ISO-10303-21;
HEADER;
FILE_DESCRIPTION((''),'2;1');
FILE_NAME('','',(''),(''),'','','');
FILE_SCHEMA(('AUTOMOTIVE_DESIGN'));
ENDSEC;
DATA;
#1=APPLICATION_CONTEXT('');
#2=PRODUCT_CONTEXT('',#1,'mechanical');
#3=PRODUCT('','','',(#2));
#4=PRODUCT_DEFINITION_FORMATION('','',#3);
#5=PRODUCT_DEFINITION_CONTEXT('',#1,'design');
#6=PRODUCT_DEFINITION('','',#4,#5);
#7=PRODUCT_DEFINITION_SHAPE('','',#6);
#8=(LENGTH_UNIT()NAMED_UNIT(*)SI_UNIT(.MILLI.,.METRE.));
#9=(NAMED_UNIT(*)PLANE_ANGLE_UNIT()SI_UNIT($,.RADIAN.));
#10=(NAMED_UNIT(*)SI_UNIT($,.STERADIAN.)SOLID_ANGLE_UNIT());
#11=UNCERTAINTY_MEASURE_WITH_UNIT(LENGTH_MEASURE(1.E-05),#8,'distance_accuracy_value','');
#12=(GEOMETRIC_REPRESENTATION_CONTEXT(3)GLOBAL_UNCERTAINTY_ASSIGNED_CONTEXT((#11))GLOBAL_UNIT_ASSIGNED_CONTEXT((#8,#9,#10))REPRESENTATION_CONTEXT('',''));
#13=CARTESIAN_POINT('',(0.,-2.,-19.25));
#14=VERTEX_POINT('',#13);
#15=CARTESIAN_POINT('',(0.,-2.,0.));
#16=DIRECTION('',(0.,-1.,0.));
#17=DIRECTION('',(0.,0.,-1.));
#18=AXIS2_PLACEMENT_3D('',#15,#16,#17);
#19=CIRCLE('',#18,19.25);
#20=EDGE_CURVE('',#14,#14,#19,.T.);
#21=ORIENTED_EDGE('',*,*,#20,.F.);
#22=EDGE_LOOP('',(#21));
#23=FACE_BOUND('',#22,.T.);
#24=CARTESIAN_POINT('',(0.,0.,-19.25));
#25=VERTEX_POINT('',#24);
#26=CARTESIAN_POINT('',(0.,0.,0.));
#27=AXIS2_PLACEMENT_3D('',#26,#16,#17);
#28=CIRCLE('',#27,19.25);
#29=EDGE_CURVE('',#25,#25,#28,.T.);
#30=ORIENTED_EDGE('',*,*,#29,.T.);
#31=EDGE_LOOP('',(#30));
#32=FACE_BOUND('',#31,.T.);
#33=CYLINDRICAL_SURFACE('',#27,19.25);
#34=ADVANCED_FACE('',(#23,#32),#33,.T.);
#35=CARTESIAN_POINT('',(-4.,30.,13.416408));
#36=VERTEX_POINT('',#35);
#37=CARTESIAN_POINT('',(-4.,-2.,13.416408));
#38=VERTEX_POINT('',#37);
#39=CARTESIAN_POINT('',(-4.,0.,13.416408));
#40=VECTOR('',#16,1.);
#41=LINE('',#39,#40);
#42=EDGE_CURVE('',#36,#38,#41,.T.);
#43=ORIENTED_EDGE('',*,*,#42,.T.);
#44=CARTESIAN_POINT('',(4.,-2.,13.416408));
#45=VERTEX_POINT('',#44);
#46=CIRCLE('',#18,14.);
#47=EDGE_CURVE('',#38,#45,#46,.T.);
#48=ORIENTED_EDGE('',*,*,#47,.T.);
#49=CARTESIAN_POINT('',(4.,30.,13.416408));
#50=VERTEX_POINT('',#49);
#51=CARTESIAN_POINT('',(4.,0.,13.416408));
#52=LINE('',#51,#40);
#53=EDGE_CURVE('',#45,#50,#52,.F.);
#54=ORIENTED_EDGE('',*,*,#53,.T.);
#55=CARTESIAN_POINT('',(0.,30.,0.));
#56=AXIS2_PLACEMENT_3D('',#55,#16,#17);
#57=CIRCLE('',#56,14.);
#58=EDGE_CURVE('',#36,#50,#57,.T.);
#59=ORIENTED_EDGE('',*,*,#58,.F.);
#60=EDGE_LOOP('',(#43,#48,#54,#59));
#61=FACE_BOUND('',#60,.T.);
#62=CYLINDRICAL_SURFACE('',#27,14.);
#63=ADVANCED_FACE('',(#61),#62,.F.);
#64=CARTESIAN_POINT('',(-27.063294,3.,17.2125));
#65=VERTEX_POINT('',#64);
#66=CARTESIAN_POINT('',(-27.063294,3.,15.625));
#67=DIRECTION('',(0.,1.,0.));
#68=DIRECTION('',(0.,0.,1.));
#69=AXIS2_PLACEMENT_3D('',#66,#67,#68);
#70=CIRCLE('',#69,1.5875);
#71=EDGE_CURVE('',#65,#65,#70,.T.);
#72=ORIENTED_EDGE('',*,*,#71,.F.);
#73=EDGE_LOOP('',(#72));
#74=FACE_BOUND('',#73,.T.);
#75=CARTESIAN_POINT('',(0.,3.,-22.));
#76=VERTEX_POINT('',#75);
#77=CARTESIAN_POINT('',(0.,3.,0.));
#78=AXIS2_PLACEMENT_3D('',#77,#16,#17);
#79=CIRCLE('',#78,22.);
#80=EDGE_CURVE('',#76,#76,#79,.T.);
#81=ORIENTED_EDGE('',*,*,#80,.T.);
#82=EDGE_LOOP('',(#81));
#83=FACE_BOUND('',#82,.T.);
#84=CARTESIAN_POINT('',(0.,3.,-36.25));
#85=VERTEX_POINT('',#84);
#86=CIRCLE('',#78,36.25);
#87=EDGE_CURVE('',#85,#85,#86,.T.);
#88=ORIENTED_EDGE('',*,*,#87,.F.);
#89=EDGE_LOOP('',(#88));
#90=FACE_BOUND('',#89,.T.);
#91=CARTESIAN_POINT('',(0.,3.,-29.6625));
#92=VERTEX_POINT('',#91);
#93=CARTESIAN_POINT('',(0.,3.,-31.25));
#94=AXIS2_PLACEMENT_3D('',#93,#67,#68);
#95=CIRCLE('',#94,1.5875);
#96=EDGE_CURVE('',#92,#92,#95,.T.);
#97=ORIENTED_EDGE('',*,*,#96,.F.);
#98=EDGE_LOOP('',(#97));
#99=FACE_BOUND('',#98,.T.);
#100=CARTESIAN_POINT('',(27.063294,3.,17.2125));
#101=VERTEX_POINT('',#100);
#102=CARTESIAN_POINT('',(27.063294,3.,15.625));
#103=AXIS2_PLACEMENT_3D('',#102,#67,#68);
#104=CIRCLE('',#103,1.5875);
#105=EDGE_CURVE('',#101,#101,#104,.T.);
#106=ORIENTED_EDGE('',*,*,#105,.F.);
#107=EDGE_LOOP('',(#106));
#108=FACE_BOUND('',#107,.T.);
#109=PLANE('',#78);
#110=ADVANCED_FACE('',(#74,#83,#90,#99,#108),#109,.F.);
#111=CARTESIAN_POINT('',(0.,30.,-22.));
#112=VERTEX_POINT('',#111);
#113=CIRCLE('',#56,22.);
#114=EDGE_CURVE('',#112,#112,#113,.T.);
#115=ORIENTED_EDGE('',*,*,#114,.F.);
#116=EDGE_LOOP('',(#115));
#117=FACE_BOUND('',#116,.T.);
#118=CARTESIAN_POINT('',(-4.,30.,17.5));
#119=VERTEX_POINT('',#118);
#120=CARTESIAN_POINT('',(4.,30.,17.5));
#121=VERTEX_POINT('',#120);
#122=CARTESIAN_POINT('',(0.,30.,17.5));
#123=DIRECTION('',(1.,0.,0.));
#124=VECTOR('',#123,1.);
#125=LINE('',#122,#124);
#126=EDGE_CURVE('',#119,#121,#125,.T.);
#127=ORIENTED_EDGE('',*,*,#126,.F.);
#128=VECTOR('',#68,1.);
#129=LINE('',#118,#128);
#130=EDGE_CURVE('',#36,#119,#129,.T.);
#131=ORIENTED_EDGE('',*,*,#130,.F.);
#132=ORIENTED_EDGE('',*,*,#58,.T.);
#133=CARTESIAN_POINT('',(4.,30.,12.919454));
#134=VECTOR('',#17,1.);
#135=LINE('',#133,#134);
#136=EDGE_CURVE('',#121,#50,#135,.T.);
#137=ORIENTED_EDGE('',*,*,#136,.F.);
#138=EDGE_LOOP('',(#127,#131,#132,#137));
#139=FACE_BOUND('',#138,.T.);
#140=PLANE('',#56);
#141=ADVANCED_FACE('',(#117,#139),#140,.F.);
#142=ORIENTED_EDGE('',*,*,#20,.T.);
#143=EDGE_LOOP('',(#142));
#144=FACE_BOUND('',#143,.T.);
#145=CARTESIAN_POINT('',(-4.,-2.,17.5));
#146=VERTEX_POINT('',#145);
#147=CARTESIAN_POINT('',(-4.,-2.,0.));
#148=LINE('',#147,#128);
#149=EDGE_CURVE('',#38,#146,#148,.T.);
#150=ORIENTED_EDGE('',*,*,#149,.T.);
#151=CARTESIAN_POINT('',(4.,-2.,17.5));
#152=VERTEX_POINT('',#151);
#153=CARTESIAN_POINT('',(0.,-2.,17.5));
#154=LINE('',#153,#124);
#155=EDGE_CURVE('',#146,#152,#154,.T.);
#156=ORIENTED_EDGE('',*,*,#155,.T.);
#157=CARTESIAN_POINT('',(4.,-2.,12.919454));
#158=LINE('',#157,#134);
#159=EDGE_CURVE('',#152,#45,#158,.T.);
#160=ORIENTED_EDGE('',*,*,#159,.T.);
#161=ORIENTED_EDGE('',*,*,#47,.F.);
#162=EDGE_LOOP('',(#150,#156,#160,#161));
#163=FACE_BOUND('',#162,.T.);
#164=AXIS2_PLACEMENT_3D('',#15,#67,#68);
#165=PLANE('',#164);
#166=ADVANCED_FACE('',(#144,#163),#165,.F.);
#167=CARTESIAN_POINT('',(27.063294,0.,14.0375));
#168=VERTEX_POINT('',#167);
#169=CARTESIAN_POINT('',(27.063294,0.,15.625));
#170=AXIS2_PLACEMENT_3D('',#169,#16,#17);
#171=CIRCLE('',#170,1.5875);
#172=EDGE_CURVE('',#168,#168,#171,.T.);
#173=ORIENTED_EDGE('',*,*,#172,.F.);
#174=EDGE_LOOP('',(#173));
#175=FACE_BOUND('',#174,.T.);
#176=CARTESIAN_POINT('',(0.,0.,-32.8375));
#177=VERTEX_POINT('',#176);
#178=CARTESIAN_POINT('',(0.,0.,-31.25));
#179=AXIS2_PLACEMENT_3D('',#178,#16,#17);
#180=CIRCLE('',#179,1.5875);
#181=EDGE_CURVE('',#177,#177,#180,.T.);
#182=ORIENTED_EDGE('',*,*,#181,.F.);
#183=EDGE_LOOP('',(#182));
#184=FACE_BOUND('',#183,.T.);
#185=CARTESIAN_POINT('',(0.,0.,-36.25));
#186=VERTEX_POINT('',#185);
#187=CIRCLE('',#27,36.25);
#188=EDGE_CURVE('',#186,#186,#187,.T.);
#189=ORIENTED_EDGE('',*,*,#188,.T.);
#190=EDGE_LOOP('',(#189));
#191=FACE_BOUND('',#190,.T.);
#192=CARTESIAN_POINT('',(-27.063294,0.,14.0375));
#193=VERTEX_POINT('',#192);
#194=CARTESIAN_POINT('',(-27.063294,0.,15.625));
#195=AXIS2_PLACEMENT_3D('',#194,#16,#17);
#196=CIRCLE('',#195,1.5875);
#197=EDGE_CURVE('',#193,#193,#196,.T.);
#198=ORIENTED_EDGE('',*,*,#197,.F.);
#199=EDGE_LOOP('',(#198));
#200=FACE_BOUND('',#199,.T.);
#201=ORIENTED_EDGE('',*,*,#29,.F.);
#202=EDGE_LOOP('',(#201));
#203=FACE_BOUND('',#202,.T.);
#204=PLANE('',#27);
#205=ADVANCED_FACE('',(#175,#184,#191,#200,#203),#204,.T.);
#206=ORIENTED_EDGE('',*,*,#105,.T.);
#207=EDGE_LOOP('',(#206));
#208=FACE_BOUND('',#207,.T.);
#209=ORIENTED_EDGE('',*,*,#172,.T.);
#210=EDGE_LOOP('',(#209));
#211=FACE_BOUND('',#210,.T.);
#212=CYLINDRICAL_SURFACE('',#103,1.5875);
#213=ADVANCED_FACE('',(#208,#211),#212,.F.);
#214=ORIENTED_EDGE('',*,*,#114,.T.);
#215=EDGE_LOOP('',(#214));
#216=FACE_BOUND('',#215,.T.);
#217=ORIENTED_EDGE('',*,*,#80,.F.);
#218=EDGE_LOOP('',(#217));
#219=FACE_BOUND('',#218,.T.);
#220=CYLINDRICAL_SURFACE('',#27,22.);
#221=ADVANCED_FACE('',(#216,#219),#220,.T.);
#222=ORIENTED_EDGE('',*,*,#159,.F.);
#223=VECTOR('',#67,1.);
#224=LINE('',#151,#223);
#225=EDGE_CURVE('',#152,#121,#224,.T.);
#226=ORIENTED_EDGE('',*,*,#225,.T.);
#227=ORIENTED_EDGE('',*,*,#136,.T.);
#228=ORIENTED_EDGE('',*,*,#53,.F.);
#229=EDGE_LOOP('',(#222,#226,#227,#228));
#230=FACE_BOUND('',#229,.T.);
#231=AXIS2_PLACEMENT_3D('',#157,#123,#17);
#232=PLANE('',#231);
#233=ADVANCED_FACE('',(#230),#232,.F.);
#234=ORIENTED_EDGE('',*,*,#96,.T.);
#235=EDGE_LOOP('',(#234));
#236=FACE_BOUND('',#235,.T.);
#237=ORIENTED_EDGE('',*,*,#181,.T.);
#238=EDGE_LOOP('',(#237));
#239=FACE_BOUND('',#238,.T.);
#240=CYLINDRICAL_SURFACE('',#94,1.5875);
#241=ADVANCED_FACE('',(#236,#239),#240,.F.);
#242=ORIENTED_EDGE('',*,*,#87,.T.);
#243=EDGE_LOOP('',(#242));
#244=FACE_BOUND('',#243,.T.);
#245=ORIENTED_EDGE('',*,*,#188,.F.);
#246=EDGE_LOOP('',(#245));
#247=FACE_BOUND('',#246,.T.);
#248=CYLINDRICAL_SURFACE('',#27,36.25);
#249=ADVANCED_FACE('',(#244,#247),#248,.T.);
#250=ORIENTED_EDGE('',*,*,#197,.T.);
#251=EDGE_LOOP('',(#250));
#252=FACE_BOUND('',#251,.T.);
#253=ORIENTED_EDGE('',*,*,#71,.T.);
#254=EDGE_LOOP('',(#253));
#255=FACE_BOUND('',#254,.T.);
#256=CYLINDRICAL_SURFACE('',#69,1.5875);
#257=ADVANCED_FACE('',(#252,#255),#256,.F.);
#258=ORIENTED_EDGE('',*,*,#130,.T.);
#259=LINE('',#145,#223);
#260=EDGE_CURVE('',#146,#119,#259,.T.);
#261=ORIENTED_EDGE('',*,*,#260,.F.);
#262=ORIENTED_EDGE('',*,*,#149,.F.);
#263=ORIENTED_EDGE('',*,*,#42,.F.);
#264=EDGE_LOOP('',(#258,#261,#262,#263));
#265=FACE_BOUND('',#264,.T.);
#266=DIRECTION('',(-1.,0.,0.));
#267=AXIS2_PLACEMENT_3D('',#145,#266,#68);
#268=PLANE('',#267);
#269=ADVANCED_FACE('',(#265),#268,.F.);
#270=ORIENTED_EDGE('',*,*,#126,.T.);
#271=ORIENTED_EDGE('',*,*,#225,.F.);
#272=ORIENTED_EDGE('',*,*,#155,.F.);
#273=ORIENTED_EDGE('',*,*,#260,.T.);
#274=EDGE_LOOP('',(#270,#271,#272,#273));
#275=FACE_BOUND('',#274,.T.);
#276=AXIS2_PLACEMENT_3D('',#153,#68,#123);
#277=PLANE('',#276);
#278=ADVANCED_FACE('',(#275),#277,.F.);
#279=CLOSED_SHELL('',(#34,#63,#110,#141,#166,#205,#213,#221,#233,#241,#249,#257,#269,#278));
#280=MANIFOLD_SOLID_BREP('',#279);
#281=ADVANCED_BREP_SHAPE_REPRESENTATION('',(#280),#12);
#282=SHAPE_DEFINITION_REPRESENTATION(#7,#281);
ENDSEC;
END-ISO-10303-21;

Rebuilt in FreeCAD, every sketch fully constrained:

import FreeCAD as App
import Part
import Sketcher
Q = App.Units.Quantity

doc = App.newDocument("Part")
body = doc.addObject("PartDesign::Body", "Body")

sketch1 = doc.addObject("Sketcher::SketchObject", "Sketch")
body.addObject(sketch1)
sketch1.AttachmentSupport = (doc.XY_Plane, [""])
sketch1.MapMode = "FlatFace"
sketch1.addGeometry([
    Part.LineSegment(App.Vector(22, 3, 0), App.Vector(22, 30, 0)),
    Part.LineSegment(App.Vector(22, 30, 0), App.Vector(14, 30, 0)),
    Part.LineSegment(App.Vector(14, 30, 0), App.Vector(14, -2, 0)),
    Part.LineSegment(App.Vector(14, -2, 0), App.Vector(19.2, -2, 0)),
    Part.LineSegment(App.Vector(19.2, -2, 0), App.Vector(19.2, 0, 0)),
    Part.LineSegment(App.Vector(19.2, 0, 0), App.Vector(36.2, 0, 0)),
    Part.LineSegment(App.Vector(36.2, 0, 0), App.Vector(36.2, 3, 0)),
    Part.LineSegment(App.Vector(36.2, 3, 0), App.Vector(22, 3, 0)),
], False)
sketch1.addConstraint([
    Sketcher.Constraint("Coincident", 0, 2, 1, 1),
    Sketcher.Constraint("Coincident", 1, 2, 2, 1),
    Sketcher.Constraint("Coincident", 2, 2, 3, 1),
    Sketcher.Constraint("Coincident", 3, 2, 4, 1),
    Sketcher.Constraint("Coincident", 4, 2, 5, 1),
    Sketcher.Constraint("Coincident", 5, 2, 6, 1),
    Sketcher.Constraint("Coincident", 6, 2, 7, 1),
    Sketcher.Constraint("Coincident", 7, 2, 0, 1),
    Sketcher.Constraint("Vertical", 0),
    Sketcher.Constraint("Horizontal", 1),
    Sketcher.Constraint("Vertical", 2),
    Sketcher.Constraint("Horizontal", 3),
    Sketcher.Constraint("Vertical", 4),
    Sketcher.Constraint("Horizontal", 5),
    Sketcher.Constraint("Vertical", 6),
    Sketcher.Constraint("Horizontal", 7),
    Sketcher.Constraint("PointOnObject", 4, 2, -1),
    Sketcher.Constraint("DistanceX", 1, 2, 1, 1, Q("8 mm")),
    Sketcher.Constraint("DistanceX", 5, 1, 5, 2, Q("17 mm")),
    Sketcher.Constraint("DistanceY", 0, 1, 0, 2, Q("27 mm")),
    Sketcher.Constraint("DistanceY", 2, 2, 2, 1, Q("32 mm")),
    Sketcher.Constraint("DistanceY", 4, 1, 4, 2, Q("2 mm")),
    Sketcher.Constraint("DistanceX", -1, 1, 0, 2, Q("22 mm")),
    Sketcher.Constraint("DistanceX", 3, 1, 3, 2, Q("5.25 mm")),
])
revolution = doc.addObject("PartDesign::Revolution", "Revolution")
body.addObject(revolution)
revolution.Profile = sketch1
revolution.ReferenceAxis = (sketch1, ["V_Axis"])
revolution.Angle = 360

sketch2 = doc.addObject("Sketcher::SketchObject", "Sketch001")
body.addObject(sketch2)
sketch2.AttachmentSupport = (doc.XZ_Plane, [""])
sketch2.MapMode = "FlatFace"
sketch2.AttachmentOffset = App.Placement(App.Vector(0, 0, -3), App.Rotation())
sketch2.addGeometry(Part.Circle(App.Vector(0, -31.2, 0), App.Vector(0, 0, 1), 1.6), False)
sketch2.addConstraint([
    Sketcher.Constraint("PointOnObject", 0, 3, -2),
    Sketcher.Constraint("Diameter", 0, Q("3.175 mm")),
    Sketcher.Constraint("DistanceY", 0, 3, -1, 1, Q("31.25 mm")),
])
doc.recompute()
hole = doc.addObject("PartDesign::Hole", "Hole")
body.addObject(hole)
hole.Profile = sketch2
hole.ThreadType = "None"
hole.Diameter = 3.175
hole.DepthType = "ThroughAll"
hole.Reversed = True
doc.recompute()

polarpattern = doc.addObject("PartDesign::PolarPattern", "PolarPattern")
body.addObject(polarpattern)
polarpattern.Originals = [hole]
polarpattern.Axis = (doc.Y_Axis, [""])
polarpattern.Angle = 360
polarpattern.Occurrences = 3
body.Tip = polarpattern

sketch3 = doc.addObject("Sketcher::SketchObject", "Sketch002")
body.addObject(sketch3)
sketch3.AttachmentSupport = (doc.XZ_Plane, [""])
sketch3.MapMode = "FlatFace"
sketch3.AttachmentOffset = App.Placement(App.Vector(0, 0, -30), App.Rotation())
sketch3.addGeometry([
    Part.LineSegment(App.Vector(4, 17.5, 0), App.Vector(4, 12.9, 0)),
    Part.LineSegment(App.Vector(4, 12.9, 0), App.Vector(-4, 12.9, 0)),
    Part.LineSegment(App.Vector(-4, 12.9, 0), App.Vector(-4, 17.5, 0)),
    Part.LineSegment(App.Vector(-4, 17.5, 0), App.Vector(4, 17.5, 0)),
], False)
sketch3.addConstraint([
    Sketcher.Constraint("Coincident", 0, 2, 1, 1),
    Sketcher.Constraint("Coincident", 1, 2, 2, 1),
    Sketcher.Constraint("Coincident", 2, 2, 3, 1),
    Sketcher.Constraint("Coincident", 3, 2, 0, 1),
    Sketcher.Constraint("Vertical", 0),
    Sketcher.Constraint("Horizontal", 1),
    Sketcher.Constraint("Vertical", 2),
    Sketcher.Constraint("Horizontal", 3),
    Sketcher.Constraint("DistanceX", 1, 2, 1, 1, Q("8 mm")),
    Sketcher.Constraint("DistanceX", -1, 1, 0, 2, Q("4 mm")),
    Sketcher.Constraint("DistanceY", -1, 1, 2, 2, Q("17.5 mm")),
    Sketcher.Constraint("DistanceY", 0, 2, 0, 1, Q("4.580546 mm")),
])
pocket1 = doc.addObject("PartDesign::Pocket", "Pocket")
body.addObject(pocket1)
pocket1.Profile = sketch3
pocket1.Type = "ThroughAll"
pocket1.Reversed = True

doc.recompute()
